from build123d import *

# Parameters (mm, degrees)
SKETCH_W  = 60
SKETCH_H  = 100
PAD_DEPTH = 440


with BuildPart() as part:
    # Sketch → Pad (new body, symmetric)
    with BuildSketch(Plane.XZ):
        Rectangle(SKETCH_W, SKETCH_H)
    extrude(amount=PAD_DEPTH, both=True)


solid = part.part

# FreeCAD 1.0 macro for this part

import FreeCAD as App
import Part
import Sketcher
Q = App.Units.Quantity


def add_polygon(sketch, points):
    """Adds a closed chain of lines whose ends are joined by coincident constraints."""
    first, n = sketch.GeometryCount, len(points)
    for a, b in zip(points, points[1:] + points[:1]):
        sketch.addGeometry(Part.LineSegment(App.Vector(*a, 0), App.Vector(*b, 0)), False)
    for i in range(n):
        sketch.addConstraint(Sketcher.Constraint("Coincident", first + i, 2, first + (i + 1) % n, 1))

doc = App.newDocument("Part")
body = doc.addObject("PartDesign::Body", "Body")

sketch1 = doc.addObject("Sketcher::SketchObject", "Sketch")
body.addObject(sketch1)
sketch1.AttachmentSupport = (doc.XZ_Plane, [""])
sketch1.MapMode = "FlatFace"
add_polygon(sketch1, [(-30, 50), (-30, -50), (30, -50), (30, 50)])
sketch1.addConstraint([
    Sketcher.Constraint("Vertical", 0),
    Sketcher.Constraint("Horizontal", 1),
    Sketcher.Constraint("Vertical", 2),
    Sketcher.Constraint("Horizontal", 3),
    Sketcher.Constraint("Symmetric", 0, 2, 2, 2, -1, 1),
    Sketcher.Constraint("DistanceX", 1, 1, 1, 2, Q("60 mm")),
    Sketcher.Constraint("DistanceY", 0, 2, 0, 1, Q("100 mm")),
])
pad1 = doc.addObject("PartDesign::Pad", "Pad")
body.addObject(pad1)
pad1.Profile = sketch1
pad1.Length = 880
pad1.Midplane = True

doc.recompute()
